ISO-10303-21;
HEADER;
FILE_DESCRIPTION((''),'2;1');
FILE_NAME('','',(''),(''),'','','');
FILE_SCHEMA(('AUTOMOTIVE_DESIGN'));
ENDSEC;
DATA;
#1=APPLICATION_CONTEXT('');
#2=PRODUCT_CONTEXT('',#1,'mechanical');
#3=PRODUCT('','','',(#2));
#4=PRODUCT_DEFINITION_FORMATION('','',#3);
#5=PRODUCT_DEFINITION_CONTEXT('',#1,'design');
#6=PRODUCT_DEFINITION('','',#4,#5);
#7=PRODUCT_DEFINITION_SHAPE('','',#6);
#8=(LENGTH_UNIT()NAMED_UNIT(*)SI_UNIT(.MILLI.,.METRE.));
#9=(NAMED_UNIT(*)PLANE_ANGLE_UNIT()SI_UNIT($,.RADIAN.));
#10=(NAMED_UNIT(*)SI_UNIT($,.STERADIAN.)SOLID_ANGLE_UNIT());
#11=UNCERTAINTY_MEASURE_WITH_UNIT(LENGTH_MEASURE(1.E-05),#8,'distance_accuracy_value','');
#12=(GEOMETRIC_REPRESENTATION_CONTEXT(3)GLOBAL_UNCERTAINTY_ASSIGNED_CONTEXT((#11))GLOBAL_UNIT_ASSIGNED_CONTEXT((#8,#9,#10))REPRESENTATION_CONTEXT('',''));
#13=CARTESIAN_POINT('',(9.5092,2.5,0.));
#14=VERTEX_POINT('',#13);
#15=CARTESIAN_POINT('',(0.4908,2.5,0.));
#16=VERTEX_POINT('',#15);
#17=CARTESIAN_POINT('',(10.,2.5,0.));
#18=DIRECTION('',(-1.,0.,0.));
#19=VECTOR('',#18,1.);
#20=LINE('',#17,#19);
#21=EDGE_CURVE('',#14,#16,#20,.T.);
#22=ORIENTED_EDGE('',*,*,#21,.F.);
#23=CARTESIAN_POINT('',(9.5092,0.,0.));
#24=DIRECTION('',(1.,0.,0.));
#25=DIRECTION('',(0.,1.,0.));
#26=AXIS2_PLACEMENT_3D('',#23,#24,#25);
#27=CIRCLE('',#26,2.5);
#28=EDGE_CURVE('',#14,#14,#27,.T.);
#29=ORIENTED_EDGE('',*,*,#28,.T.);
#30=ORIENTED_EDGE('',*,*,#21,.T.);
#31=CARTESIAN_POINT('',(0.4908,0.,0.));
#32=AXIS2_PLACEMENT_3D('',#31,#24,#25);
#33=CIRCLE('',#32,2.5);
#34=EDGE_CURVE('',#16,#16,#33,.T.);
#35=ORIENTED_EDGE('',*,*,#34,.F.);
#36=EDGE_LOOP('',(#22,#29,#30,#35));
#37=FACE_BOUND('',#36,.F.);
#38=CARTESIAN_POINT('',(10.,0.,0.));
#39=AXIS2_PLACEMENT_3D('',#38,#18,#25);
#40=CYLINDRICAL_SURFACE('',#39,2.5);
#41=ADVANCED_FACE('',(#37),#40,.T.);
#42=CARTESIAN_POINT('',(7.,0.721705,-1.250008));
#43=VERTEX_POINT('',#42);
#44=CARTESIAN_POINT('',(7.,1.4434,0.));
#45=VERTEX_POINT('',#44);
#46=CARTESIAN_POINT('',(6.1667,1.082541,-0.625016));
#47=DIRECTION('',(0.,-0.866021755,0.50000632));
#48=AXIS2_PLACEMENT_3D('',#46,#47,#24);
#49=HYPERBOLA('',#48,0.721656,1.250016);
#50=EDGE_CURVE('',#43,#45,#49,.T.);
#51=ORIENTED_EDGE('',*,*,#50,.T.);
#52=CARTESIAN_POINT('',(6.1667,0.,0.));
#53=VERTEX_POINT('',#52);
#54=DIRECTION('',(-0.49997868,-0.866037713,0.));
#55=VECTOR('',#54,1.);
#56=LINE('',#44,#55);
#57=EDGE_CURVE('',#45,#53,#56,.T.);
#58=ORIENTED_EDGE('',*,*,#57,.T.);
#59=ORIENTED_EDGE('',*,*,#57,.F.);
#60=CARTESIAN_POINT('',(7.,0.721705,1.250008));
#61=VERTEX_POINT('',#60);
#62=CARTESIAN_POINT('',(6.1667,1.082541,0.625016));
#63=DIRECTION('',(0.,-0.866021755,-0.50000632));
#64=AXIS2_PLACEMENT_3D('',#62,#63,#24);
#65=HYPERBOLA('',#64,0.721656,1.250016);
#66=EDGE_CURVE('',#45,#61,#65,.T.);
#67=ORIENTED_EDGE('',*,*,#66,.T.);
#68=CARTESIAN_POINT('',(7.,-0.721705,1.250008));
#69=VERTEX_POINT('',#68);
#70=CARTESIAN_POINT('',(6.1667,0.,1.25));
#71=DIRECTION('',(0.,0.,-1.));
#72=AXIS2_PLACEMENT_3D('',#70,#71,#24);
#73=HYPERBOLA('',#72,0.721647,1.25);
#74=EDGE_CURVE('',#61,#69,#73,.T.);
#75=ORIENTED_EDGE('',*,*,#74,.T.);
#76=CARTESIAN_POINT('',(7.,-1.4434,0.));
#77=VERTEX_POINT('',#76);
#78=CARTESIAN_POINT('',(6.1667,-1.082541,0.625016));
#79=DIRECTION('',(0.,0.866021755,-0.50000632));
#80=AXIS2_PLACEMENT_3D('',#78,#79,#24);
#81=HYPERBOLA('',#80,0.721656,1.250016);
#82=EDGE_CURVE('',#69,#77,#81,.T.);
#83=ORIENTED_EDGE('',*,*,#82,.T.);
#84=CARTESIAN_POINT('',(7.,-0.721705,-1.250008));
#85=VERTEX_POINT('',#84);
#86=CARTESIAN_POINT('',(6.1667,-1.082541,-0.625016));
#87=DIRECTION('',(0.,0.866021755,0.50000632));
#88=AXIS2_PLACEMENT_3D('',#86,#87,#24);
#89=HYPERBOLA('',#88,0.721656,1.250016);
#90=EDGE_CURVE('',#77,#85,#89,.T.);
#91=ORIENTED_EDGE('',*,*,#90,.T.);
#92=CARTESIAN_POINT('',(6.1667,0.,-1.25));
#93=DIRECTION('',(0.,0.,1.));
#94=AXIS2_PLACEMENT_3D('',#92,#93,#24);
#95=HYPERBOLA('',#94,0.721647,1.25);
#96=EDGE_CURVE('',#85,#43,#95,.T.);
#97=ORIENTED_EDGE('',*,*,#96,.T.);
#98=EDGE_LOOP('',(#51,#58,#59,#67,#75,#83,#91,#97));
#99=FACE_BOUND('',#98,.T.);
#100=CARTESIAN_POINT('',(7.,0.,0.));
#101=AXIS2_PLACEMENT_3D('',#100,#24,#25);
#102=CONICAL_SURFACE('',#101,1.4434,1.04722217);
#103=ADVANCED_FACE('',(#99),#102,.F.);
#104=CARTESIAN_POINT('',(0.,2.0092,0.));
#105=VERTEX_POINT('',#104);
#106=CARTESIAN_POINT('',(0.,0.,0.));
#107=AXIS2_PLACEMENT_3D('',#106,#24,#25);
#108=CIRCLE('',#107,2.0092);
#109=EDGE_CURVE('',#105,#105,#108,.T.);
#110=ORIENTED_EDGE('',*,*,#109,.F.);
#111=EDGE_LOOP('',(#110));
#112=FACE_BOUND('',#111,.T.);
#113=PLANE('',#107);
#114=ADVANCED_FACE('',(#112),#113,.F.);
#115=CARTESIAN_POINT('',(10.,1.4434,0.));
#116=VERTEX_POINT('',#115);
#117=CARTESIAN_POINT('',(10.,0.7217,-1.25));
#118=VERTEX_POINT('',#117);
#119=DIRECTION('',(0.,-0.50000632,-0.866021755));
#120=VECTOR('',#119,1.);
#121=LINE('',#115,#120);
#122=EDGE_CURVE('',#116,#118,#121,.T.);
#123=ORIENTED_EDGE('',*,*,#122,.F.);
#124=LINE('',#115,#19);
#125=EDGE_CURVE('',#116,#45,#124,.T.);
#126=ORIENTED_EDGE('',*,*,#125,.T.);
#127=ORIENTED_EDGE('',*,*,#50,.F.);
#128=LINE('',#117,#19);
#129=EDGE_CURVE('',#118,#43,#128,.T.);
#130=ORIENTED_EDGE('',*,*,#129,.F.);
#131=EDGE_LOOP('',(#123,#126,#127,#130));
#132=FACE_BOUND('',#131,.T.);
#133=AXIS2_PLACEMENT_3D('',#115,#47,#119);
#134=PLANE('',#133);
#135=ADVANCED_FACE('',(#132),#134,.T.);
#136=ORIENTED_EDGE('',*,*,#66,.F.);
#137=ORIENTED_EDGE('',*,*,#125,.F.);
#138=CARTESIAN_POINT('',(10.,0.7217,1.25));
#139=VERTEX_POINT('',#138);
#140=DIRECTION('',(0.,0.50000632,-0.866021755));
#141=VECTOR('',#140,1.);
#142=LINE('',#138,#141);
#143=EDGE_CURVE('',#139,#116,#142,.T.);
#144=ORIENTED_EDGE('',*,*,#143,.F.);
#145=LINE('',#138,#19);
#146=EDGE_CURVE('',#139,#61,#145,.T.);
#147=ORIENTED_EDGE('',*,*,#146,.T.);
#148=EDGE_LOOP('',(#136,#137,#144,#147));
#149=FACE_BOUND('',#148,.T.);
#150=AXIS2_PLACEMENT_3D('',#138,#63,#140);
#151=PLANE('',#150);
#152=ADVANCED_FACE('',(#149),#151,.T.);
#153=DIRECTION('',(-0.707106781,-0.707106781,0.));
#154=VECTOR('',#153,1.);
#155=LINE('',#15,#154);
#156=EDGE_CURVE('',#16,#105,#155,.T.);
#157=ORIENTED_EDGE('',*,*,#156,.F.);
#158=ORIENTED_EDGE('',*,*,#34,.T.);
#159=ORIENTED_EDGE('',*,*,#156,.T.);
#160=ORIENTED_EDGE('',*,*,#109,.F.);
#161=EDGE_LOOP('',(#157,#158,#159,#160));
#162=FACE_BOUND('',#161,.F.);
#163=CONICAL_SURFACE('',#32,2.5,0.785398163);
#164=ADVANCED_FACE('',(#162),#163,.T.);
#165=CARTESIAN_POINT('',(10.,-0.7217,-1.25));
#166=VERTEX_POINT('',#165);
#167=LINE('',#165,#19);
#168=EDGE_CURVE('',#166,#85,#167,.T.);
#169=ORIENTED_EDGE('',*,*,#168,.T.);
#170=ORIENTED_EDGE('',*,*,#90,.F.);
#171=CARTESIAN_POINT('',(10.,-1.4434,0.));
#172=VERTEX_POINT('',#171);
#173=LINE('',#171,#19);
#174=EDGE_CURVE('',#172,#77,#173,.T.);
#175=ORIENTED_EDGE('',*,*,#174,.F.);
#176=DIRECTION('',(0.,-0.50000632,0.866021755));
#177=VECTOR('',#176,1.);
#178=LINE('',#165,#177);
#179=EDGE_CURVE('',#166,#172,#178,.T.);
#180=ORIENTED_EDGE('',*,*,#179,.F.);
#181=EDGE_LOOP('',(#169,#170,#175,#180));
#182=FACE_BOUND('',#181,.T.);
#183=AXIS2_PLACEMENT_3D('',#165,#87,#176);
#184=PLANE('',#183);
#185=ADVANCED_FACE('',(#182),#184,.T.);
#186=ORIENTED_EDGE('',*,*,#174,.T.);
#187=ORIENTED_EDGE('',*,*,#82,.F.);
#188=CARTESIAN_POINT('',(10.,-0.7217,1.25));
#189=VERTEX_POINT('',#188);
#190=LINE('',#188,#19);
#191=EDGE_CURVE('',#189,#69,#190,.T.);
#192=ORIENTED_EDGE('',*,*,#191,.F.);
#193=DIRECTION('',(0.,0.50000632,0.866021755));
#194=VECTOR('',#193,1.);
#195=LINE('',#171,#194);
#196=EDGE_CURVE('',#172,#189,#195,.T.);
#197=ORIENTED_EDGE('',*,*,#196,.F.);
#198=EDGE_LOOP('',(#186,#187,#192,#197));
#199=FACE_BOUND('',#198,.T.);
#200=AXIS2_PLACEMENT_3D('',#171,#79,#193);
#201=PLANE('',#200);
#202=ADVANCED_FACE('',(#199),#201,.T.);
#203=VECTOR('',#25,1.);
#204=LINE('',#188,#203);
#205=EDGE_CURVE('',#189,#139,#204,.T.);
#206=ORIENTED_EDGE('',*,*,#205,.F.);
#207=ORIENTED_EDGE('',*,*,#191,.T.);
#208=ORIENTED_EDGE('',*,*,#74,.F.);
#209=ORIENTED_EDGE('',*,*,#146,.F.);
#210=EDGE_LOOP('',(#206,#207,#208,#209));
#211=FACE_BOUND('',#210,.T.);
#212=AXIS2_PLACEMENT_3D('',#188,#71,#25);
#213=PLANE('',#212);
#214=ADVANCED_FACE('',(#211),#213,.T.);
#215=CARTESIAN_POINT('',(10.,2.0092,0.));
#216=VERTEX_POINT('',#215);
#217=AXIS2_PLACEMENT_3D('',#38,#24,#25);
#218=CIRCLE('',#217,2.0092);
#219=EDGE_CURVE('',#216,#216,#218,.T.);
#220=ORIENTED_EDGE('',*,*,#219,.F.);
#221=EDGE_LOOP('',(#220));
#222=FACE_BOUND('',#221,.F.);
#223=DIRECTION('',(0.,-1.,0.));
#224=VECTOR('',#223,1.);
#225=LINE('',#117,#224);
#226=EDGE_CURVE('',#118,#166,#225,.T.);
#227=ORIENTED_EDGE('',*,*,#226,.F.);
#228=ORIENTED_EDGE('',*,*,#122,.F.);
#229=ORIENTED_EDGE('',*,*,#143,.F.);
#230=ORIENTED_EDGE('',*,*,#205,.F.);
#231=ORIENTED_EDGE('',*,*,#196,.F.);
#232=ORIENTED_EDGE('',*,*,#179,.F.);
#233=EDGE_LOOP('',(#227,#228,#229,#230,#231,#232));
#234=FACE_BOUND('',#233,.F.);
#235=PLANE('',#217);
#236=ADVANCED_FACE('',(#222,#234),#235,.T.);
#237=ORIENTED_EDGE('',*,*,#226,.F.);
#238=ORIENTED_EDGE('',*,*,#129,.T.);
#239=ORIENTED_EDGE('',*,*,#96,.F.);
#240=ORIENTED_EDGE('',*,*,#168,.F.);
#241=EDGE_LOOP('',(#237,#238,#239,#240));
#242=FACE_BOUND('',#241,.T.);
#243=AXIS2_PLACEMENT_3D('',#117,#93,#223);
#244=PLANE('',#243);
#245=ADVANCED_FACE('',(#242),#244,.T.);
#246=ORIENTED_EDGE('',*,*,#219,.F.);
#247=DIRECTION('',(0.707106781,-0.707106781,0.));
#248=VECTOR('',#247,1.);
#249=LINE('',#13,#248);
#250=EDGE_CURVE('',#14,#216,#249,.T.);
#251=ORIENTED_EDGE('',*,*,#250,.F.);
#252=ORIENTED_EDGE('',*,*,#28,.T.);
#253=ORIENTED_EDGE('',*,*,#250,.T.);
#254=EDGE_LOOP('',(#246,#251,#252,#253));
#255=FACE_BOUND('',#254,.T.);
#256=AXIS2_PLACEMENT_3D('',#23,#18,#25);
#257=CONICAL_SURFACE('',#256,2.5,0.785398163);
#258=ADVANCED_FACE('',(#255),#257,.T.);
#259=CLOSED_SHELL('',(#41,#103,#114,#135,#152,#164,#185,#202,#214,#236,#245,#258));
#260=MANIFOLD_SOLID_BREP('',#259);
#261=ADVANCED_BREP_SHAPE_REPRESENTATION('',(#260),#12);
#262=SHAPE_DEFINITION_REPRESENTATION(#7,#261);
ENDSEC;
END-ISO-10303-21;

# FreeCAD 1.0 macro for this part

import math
import FreeCAD as App
import Part
import Sketcher
from FreeCAD import Vector
Q = App.Units.Quantity


def edges_at(feature, points):
    """Names of the edges that pass closest to the given points."""
    edges = feature.Shape.Edges
    near = lambda p: min(range(len(edges)), key=lambda i: edges[i].distToShape(Part.Vertex(*p))[0])
    return sorted({f"Edge{near(p) + 1}" for p in points})

doc = App.newDocument("Part")
body = doc.addObject("PartDesign::Body", "Body")

# Sketch on XY plane
sketch1 = doc.addObject("Sketcher::SketchObject", "Sketch")
body.addObject(sketch1)
sketch1.AttachmentSupport = (doc.XY_Plane, [""])
sketch1.MapMode = "FlatFace"
sketch1.addGeometry(Part.LineSegment(Vector(0, 2.5, 0), Vector(0, 0, 0)), False)
sketch1.addGeometry(Part.LineSegment(Vector(0, 0, 0), Vector(6.2, 0, 0)), False)
sketch1.addGeometry(Part.LineSegment(Vector(6.2, 0, 0), Vector(7, 1.4, 0)), False)
sketch1.addGeometry(Part.LineSegment(Vector(7, 1.4, 0), Vector(10, 1.4, 0)), False)
sketch1.addGeometry(Part.LineSegment(Vector(10, 1.4, 0), Vector(10, 2.5, 0)), False)
sketch1.addGeometry(Part.LineSegment(Vector(10, 2.5, 0), Vector(0, 2.5, 0)), False)
sketch1.addConstraint(Sketcher.Constraint("Coincident", 0, 2, 1, 1))
sketch1.addConstraint(Sketcher.Constraint("Coincident", 1, 2, 2, 1))
sketch1.addConstraint(Sketcher.Constraint("Coincident", 2, 2, 3, 1))
sketch1.addConstraint(Sketcher.Constraint("Coincident", 3, 2, 4, 1))
sketch1.addConstraint(Sketcher.Constraint("Coincident", 4, 2, 5, 1))
sketch1.addConstraint(Sketcher.Constraint("Coincident", 5, 2, 0, 1))
sketch1.addConstraint(Sketcher.Constraint("Vertical", 0))
sketch1.addConstraint(Sketcher.Constraint("Horizontal", 1))
sketch1.addConstraint(Sketcher.Constraint("Horizontal", 3))
sketch1.addConstraint(Sketcher.Constraint("Vertical", 4))
sketch1.addConstraint(Sketcher.Constraint("Horizontal", 5))
sketch1.addConstraint(Sketcher.Constraint("Coincident", 0, 2, -1, 1))
sketch1.addConstraint(Sketcher.Constraint("DistanceX", 3, 1, 3, 2, 3.0))
sketch1.addConstraint(Sketcher.Constraint("DistanceX", 5, 2, 5, 1, 10.0))
sketch1.addConstraint(Sketcher.Constraint("DistanceY", 0, 2, 0, 1, 2.5))
sketch1.addConstraint(Sketcher.Constraint("DistanceX", 1, 1, 1, 2, 6.1667))
sketch1.addConstraint(Sketcher.Constraint("DistanceY", 4, 1, 4, 2, 1.0566))
revolution = doc.addObject("PartDesign::Revolution", "Revolution")
body.addObject(revolution)
revolution.Profile = sketch1
revolution.ReferenceAxis = (sketch1, ["H_Axis"])
revolution.Angle = 360

# Sketch on YZ plane
sketch2 = doc.addObject("Sketcher::SketchObject", "Sketch001")
body.addObject(sketch2)
sketch2.AttachmentSupport = (doc.YZ_Plane, [""])
sketch2.MapMode = "FlatFace"
sketch2.AttachmentOffset = App.Placement(Vector(0, 0, 10), App.Rotation())
sketch2.addGeometry(Part.LineSegment(Vector(0.7, 1.2, 0), Vector(1.4, 0, 0)), False)
sketch2.addGeometry(Part.ArcOfCircle(Part.Circle(Vector(0, 0, 0), Vector(0, 0, 1), 1.4), math.radians(0), math.radians(60)), False)
sketch2.addGeometry(Part.ArcOfCircle(Part.Circle(Vector(0, 0, 0), Vector(0, 0, 1), 1.4), math.radians(-60), math.radians(0)), False)
sketch2.addGeometry(Part.LineSegment(Vector(1.4, 0, 0), Vector(0.7, -1.2, 0)), False)
sketch2.addGeometry(Part.LineSegment(Vector(-0.7, 1.2, 0), Vector(0.7, 1.2, 0)), False)
sketch2.addGeometry(Part.ArcOfCircle(Part.Circle(Vector(0, 0, 0), Vector(0, 0, 1), 1.4), math.radians(60), math.radians(120)), False)
sketch2.addGeometry(Part.ArcOfCircle(Part.Circle(Vector(0, 0, 0), Vector(0, 0, 1), 1.4), math.radians(-120), math.radians(-60)), False)
sketch2.addGeometry(Part.LineSegment(Vector(-0.7, -1.2, 0), Vector(0.7, -1.2, 0)), False)
sketch2.addGeometry(Part.LineSegment(Vector(-1.4, 0, 0), Vector(-0.7, 1.2, 0)), False)
sketch2.addGeometry(Part.ArcOfCircle(Part.Circle(Vector(0, 0, 0), Vector(0, 0, 1), 1.4), math.radians(120), math.radians(180)), False)
sketch2.addGeometry(Part.ArcOfCircle(Part.Circle(Vector(0, 0, 0), Vector(0, 0, 1), 1.4), math.radians(180), math.radians(240)), False)
sketch2.addGeometry(Part.LineSegment(Vector(-1.4, 0, 0), Vector(-0.7, -1.2, 0)), False)
sketch2.addConstraint(Sketcher.Constraint("Coincident", 0, 1, 1, 2))
sketch2.addConstraint(Sketcher.Constraint("Coincident", 1, 1, 0, 2))
sketch2.addConstraint(Sketcher.Constraint("Coincident", 2, 1, 3, 2))
sketch2.addConstraint(Sketcher.Constraint("Coincident", 3, 1, 2, 2))
sketch2.addConstraint(Sketcher.Constraint("Coincident", 4, 1, 5, 2))
sketch2.addConstraint(Sketcher.Constraint("Coincident", 5, 1, 4, 2))
sketch2.addConstraint(Sketcher.Constraint("Coincident", 6, 1, 7, 1))
sketch2.addConstraint(Sketcher.Constraint("Coincident", 7, 2, 6, 2))
sketch2.addConstraint(Sketcher.Constraint("Coincident", 8, 1, 9, 2))
sketch2.addConstraint(Sketcher.Constraint("Coincident", 9, 1, 8, 2))
sketch2.addConstraint(Sketcher.Constraint("Coincident", 10, 1, 11, 1))
sketch2.addConstraint(Sketcher.Constraint("Coincident", 11, 2, 10, 2))
sketch2.addConstraint(Sketcher.Constraint("Horizontal", 4))
sketch2.addConstraint(Sketcher.Constraint("Horizontal", 7))
sketch2.addConstraint(Sketcher.Constraint("Coincident", 1, 3, -1, 1))
sketch2.addConstraint(Sketcher.Constraint("Coincident", 2, 3, -1, 1))
sketch2.addConstraint(Sketcher.Constraint("Coincident", 5, 3, -1, 1))
sketch2.addConstraint(Sketcher.Constraint("Coincident", 6, 3, -1, 1))
sketch2.addConstraint(Sketcher.Constraint("Coincident", 9, 3, -1, 1))
sketch2.addConstraint(Sketcher.Constraint("Coincident", 10, 3, -1, 1))
sketch2.addConstraint(Sketcher.Constraint("Coincident", 3, 1, 1, 1))
sketch2.addConstraint(Sketcher.Constraint("Coincident", 5, 1, 0, 1))
sketch2.addConstraint(Sketcher.Constraint("Coincident", 7, 2, 2, 1))
sketch2.addConstraint(Sketcher.Constraint("Coincident", 9, 1, 4, 1))
sketch2.addConstraint(Sketcher.Constraint("Coincident", 10, 1, 8, 1))
sketch2.addConstraint(Sketcher.Constraint("PointOnObject", 1, 1, -1))
sketch2.addConstraint(Sketcher.Constraint("PointOnObject", 8, 1, -1))
sketch2.addConstraint(Sketcher.Constraint("Parallel", 3, 8))
sketch2.addConstraint(Sketcher.Constraint("Parallel", 0, 11))
sketch2.addConstraint(Sketcher.Constraint("Angle", 0, Q("-59.9996 deg")))
sketch2.addConstraint(Sketcher.Constraint("Radius", 1, 1.4434))
pad1 = doc.addObject("PartDesign::Pad", "Pad")
body.addObject(pad1)
pad1.Profile = sketch2
pad1.Type = "UpToFirst"
pad1.Reversed = True
doc.recompute()

chamfer = doc.addObject("PartDesign::Chamfer", "Chamfer")
body.addObject(chamfer)
chamfer.Base = (pad1, edges_at(pad1, [(10, -2.5, 0)]))
chamfer.Size = 0.4908
doc.recompute()

chamfer2 = doc.addObject("PartDesign::Chamfer", "Chamfer001")
body.addObject(chamfer2)
chamfer2.Base = (chamfer, edges_at(chamfer, [(0, -2.5, 0)]))
chamfer2.Size = 0.4908

doc.recompute()
